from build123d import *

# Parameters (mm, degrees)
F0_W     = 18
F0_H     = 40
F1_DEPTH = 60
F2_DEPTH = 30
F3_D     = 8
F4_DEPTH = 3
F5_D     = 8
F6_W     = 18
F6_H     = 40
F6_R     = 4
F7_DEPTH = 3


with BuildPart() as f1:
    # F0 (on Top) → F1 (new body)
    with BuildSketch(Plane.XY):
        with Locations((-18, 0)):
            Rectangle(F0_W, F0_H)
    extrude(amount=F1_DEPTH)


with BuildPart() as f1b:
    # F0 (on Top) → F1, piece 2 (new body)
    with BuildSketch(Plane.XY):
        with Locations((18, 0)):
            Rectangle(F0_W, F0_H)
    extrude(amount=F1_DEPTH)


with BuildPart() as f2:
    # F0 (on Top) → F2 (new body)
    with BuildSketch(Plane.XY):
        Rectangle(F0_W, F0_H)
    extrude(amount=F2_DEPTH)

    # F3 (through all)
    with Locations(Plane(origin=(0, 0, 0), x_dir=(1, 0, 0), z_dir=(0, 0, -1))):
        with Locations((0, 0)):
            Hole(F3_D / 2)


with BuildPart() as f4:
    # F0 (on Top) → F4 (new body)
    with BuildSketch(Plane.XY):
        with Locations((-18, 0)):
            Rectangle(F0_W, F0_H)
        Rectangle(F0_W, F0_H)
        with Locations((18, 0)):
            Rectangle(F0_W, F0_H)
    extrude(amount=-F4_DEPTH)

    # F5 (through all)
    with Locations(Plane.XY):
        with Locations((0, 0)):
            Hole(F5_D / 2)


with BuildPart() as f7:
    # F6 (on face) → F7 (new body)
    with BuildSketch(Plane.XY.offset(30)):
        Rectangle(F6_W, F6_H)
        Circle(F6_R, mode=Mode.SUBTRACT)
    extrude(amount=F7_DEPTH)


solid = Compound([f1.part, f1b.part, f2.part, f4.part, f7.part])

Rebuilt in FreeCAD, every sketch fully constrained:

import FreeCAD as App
import Part
import Sketcher

V = App.Vector


def add_polygon(sketch, points):
    """Adds a closed chain of lines whose ends are joined by coincident constraints."""
    first, n = sketch.GeometryCount, len(points)
    for a, b in zip(points, points[1:] + points[:1]):
        sketch.addGeometry(Part.LineSegment(App.Vector(*a, 0), App.Vector(*b, 0)), False)
    for i in range(n):
        sketch.addConstraint(Sketcher.Constraint("Coincident", first + i, 2, first + (i + 1) % n, 1))

doc = App.newDocument("Part")
body = doc.addObject("PartDesign::Body", "Body")

# Sketch on XY plane
sketch1 = body.newObject("Sketcher::SketchObject", "Sketch")
sketch1.AttachmentSupport = (doc.getObject("XY_Plane"), [""])
sketch1.MapMode = "FlatFace"
add_polygon(sketch1, [(-27, 20), (-27, -20), (-9, -20), (-9, 20)])  # lines 0-3
sketch1.addConstraint(Sketcher.Constraint("Vertical", 0))
sketch1.addConstraint(Sketcher.Constraint("Horizontal", 1))
sketch1.addConstraint(Sketcher.Constraint("Vertical", 2))
sketch1.addConstraint(Sketcher.Constraint("Horizontal", 3))
sketch1.addConstraint(Sketcher.Constraint("DistanceX", 1, 1, 1, 2, 18.0))
sketch1.addConstraint(Sketcher.Constraint("DistanceY", 0, 2, 0, 1, 40.0))
sketch1.addConstraint(Sketcher.Constraint("DistanceX", 0, 2, -1, 1, 27.0))
sketch1.addConstraint(Sketcher.Constraint("DistanceY", 0, 2, -1, 1, 20.0))
pad1 = body.newObject("PartDesign::Pad", "Pad")
pad1.Profile = sketch1
pad1.Length = 60
body2 = doc.addObject("PartDesign::Body", "Body001")

# Sketch on XY plane
sketch2 = body2.newObject("Sketcher::SketchObject", "Sketch001")
sketch2.AttachmentSupport = (doc.getObject("XY_Plane001"), [""])
sketch2.MapMode = "FlatFace"
add_polygon(sketch2, [(9, 20), (9, -20), (27, -20), (27, 20)])  # lines 0-3
sketch2.addConstraint(Sketcher.Constraint("Vertical", 0))
sketch2.addConstraint(Sketcher.Constraint("Horizontal", 1))
sketch2.addConstraint(Sketcher.Constraint("Vertical", 2))
sketch2.addConstraint(Sketcher.Constraint("Horizontal", 3))
sketch2.addConstraint(Sketcher.Constraint("DistanceX", 1, 1, 1, 2, 18.0))
sketch2.addConstraint(Sketcher.Constraint("DistanceY", 0, 2, 0, 1, 40.0))
sketch2.addConstraint(Sketcher.Constraint("DistanceX", -1, 1, 0, 2, 9.0))
sketch2.addConstraint(Sketcher.Constraint("DistanceY", 0, 2, -1, 1, 20.0))
pad2 = body2.newObject("PartDesign::Pad", "Pad001")
pad2.Profile = sketch2
pad2.Length = 60
body3 = doc.addObject("PartDesign::Body", "Body002")

# Sketch on XY plane
sketch3 = body3.newObject("Sketcher::SketchObject", "Sketch002")
sketch3.AttachmentSupport = (doc.getObject("XY_Plane002"), [""])
sketch3.MapMode = "FlatFace"
add_polygon(sketch3, [(-9, 20), (-9, -20), (9, -20), (9, 20)])  # lines 0-3
sketch3.addConstraint(Sketcher.Constraint("Vertical", 0))
sketch3.addConstraint(Sketcher.Constraint("Horizontal", 1))
sketch3.addConstraint(Sketcher.Constraint("Vertical", 2))
sketch3.addConstraint(Sketcher.Constraint("Horizontal", 3))
sketch3.addConstraint(Sketcher.Constraint("Symmetric", 0, 2, 2, 2, -1, 1))
sketch3.addConstraint(Sketcher.Constraint("DistanceX", 1, 1, 1, 2, 18.0))
sketch3.addConstraint(Sketcher.Constraint("DistanceY", 0, 2, 0, 1, 40.0))
pad3 = body3.newObject("PartDesign::Pad", "Pad002")
pad3.Profile = sketch3
pad3.Length = 30

# Sketch on XY plane
sketch4 = body3.newObject("Sketcher::SketchObject", "Sketch003")
sketch4.AttachmentSupport = (doc.getObject("XY_Plane002"), [""])
sketch4.MapMode = "FlatFace"
sketch4.addGeometry(Part.Circle(V(0, 0, 0), V(0, 0, 1), 4), False)
sketch4.addConstraint(Sketcher.Constraint("Coincident", 0, 3, -1, 1))
sketch4.addConstraint(Sketcher.Constraint("Diameter", 0, 8.0))
doc.recompute()
hole = body3.newObject("PartDesign::Hole", "Hole")
hole.Profile = sketch4
hole.ThreadType = "None"
hole.Diameter = 8
hole.DepthType = "ThroughAll"
hole.Reversed = True
body4 = doc.addObject("PartDesign::Body", "Body003")

# Sketch on XY plane
sketch5 = body4.newObject("Sketcher::SketchObject", "Sketch004")
sketch5.AttachmentSupport = (doc.getObject("XY_Plane003"), [""])
sketch5.MapMode = "FlatFace"
add_polygon(sketch5, [(-27, 20), (-27, -20), (27, -20), (27, 20)])  # lines 0-3
sketch5.addConstraint(Sketcher.Constraint("Vertical", 0))
sketch5.addConstraint(Sketcher.Constraint("Horizontal", 1))
sketch5.addConstraint(Sketcher.Constraint("Vertical", 2))
sketch5.addConstraint(Sketcher.Constraint("Horizontal", 3))
sketch5.addConstraint(Sketcher.Constraint("Symmetric", 0, 2, 2, 2, -1, 1))
sketch5.addConstraint(Sketcher.Constraint("DistanceX", 1, 1, 1, 2, 54.0))
sketch5.addConstraint(Sketcher.Constraint("DistanceY", 0, 2, 0, 1, 40.0))
pad4 = body4.newObject("PartDesign::Pad", "Pad003")
pad4.Profile = sketch5
pad4.Length = 3
pad4.Reversed = True

# Sketch on XY plane
sketch6 = body4.newObject("Sketcher::SketchObject", "Sketch005")
sketch6.AttachmentSupport = (doc.getObject("XY_Plane003"), [""])
sketch6.MapMode = "FlatFace"
sketch6.addGeometry(Part.Circle(V(0, 0, 0), V(0, 0, 1), 4), False)
sketch6.addConstraint(Sketcher.Constraint("Coincident", 0, 3, -1, 1))
sketch6.addConstraint(Sketcher.Constraint("Diameter", 0, 8.0))
doc.recompute()
hole2 = body4.newObject("PartDesign::Hole", "Hole001")
hole2.Profile = sketch6
hole2.ThreadType = "None"
hole2.Diameter = 8
hole2.DepthType = "ThroughAll"
body5 = doc.addObject("PartDesign::Body", "Body004")

# Sketch on XY plane
sketch7 = body5.newObject("Sketcher::SketchObject", "Sketch006")
sketch7.AttachmentSupport = (doc.getObject("XY_Plane004"), [""])
sketch7.MapMode = "FlatFace"
sketch7.AttachmentOffset = App.Placement(V(0, 0, 30), App.Rotation())
add_polygon(sketch7, [(-9, 20), (-9, -20), (9, -20), (9, 20)])  # lines 0-3
sketch7.addGeometry(Part.Circle(V(0, 0, 0), V(0, 0, 1), 4), False)  # 4
sketch7.addConstraint(Sketcher.Constraint("Vertical", 0))
sketch7.addConstraint(Sketcher.Constraint("Horizontal", 1))
sketch7.addConstraint(Sketcher.Constraint("Vertical", 2))
sketch7.addConstraint(Sketcher.Constraint("Horizontal", 3))
sketch7.addConstraint(Sketcher.Constraint("Coincident", 4, 3, -1, 1))
sketch7.addConstraint(Sketcher.Constraint("Symmetric", 0, 2, 2, 2, -1, 1))
sketch7.addConstraint(Sketcher.Constraint("Diameter", 4, 8.0))
sketch7.addConstraint(Sketcher.Constraint("DistanceX", 1, 1, 1, 2, 18.0))
sketch7.addConstraint(Sketcher.Constraint("DistanceY", 0, 2, 0, 1, 40.0))
pad5 = body5.newObject("PartDesign::Pad", "Pad004")
pad5.Profile = sketch7
pad5.Length = 3

doc.recompute()
